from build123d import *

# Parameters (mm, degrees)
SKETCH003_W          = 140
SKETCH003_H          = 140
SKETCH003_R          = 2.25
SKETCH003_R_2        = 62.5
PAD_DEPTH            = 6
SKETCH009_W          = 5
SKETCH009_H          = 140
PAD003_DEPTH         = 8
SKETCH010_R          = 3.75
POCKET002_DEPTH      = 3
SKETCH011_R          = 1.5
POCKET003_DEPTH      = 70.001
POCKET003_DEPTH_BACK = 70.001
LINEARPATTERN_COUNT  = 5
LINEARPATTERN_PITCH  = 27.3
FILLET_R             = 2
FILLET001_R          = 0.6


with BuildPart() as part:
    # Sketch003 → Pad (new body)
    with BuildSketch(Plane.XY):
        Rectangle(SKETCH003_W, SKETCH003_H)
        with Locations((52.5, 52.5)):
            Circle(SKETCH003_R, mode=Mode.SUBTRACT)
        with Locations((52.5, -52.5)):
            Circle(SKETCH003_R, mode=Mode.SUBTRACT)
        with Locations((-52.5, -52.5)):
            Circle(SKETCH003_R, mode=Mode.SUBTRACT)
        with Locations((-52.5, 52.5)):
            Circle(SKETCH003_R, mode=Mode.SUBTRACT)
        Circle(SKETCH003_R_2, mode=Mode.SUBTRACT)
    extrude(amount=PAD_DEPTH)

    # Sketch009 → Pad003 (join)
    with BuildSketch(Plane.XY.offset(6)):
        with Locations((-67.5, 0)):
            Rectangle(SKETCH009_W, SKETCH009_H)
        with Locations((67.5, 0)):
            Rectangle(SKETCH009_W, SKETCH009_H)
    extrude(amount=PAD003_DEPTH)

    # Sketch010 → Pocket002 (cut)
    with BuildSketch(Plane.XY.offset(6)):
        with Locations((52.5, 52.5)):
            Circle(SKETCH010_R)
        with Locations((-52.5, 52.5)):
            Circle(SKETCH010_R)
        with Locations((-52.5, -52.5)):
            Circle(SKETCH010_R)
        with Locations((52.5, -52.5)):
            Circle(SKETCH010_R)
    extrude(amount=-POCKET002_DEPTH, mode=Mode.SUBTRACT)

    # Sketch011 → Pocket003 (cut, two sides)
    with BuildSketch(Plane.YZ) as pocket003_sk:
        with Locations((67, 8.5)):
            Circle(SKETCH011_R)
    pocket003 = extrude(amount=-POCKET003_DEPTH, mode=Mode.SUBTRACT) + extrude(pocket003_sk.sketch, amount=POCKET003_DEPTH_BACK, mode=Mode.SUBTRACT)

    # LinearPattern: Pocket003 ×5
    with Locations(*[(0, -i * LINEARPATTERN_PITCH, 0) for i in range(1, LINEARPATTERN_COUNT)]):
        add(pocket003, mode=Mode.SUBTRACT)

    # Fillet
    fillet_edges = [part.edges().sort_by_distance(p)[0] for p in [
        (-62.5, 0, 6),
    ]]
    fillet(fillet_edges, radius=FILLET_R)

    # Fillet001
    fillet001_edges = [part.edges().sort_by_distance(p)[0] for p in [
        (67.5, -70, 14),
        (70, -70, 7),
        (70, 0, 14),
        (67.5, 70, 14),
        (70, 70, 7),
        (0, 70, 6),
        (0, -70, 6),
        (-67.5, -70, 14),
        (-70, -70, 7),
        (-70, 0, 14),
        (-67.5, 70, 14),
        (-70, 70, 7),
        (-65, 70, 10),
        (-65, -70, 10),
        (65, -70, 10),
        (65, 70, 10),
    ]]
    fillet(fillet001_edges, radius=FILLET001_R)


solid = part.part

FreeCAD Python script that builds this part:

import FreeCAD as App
import Part
import Sketcher

V = App.Vector
Q = App.Units.Quantity


def edges_at(feature, points):
    """Names of the edges that pass closest to the given points."""
    edges = feature.Shape.Edges
    near = lambda p: min(range(len(edges)), key=lambda i: edges[i].distToShape(Part.Vertex(*p))[0])
    return sorted({f"Edge{near(p) + 1}" for p in points})


def add_polygon(sketch, points):
    """Adds a closed chain of lines whose ends are joined by coincident constraints."""
    first, n = sketch.GeometryCount, len(points)
    for a, b in zip(points, points[1:] + points[:1]):
        sketch.addGeometry(Part.LineSegment(App.Vector(*a, 0), App.Vector(*b, 0)), False)
    for i in range(n):
        sketch.addConstraint(Sketcher.Constraint("Coincident", first + i, 2, first + (i + 1) % n, 1))

doc = App.newDocument("Part")
body = doc.addObject("PartDesign::Body", "Body")

sketch1 = body.newObject("Sketcher::SketchObject", "Sketch")
sketch1.AttachmentSupport = (doc.getObject("XY_Plane"), [""])
sketch1.MapMode = "FlatFace"
add_polygon(sketch1, [(-70, 70), (-70, -70), (70, -70), (70, 70)])
sketch1.addGeometry(Part.Circle(V(-52.5, -52.5, 0), V(0, 0, 1), 2.2), False)
sketch1.addGeometry(Part.Circle(V(52.5, -52.5, 0), V(0, 0, 1), 2.2), False)
sketch1.addGeometry(Part.Circle(V(-52.5, 52.5, 0), V(0, 0, 1), 2.2), False)
sketch1.addGeometry(Part.Circle(V(0, 0, 0), V(0, 0, 1), 62.5), False)
sketch1.addGeometry(Part.Circle(V(52.5, 52.5, 0), V(0, 0, 1), 2.2), False)
sketch1.addConstraint([
    Sketcher.Constraint("Vertical", 0),
    Sketcher.Constraint("Horizontal", 1),
    Sketcher.Constraint("Vertical", 2),
    Sketcher.Constraint("Horizontal", 3),
    Sketcher.Constraint("Coincident", 7, 3, -1, 1),
    Sketcher.Constraint("Equal", 4, 5),
    Sketcher.Constraint("Equal", 5, 6),
    Sketcher.Constraint("Equal", 6, 8),
    Sketcher.Constraint("Symmetric", 5, 3, 6, 3, -1, 1),
    Sketcher.Constraint("Symmetric", 4, 3, 8, 3, -1, 1),
    Sketcher.Constraint("Symmetric", 0, 2, 2, 2, -1, 1),
    Sketcher.Constraint("Symmetric", 4, 3, 5, 3, -2),
    Sketcher.Constraint("Equal", 3, 0),
    Sketcher.Constraint("Diameter", 7, Q("125 mm")),
    Sketcher.Constraint("Diameter", 4, Q("4.5 mm")),
    Sketcher.Constraint("DistanceX", 1, 1, 1, 2, Q("140 mm")),
    Sketcher.Constraint("DistanceX", 4, 3, 5, 3, Q("105 mm")),
    Sketcher.Constraint("DistanceY", 4, 3, 6, 3, Q("105 mm")),
])
pad1 = body.newObject("PartDesign::Pad", "Pad")
pad1.Profile = sketch1
pad1.Length = 6

sketch2 = body.newObject("Sketcher::SketchObject", "Sketch001")
sketch2.AttachmentSupport = (doc.getObject("XY_Plane"), [""])
sketch2.MapMode = "FlatFace"
sketch2.AttachmentOffset = App.Placement(V(0, 0, 6), App.Rotation())
add_polygon(sketch2, [(-70, 70), (-70, -70), (-65, -70), (-65, 70)])
add_polygon(sketch2, [(65, 70), (65, -70), (70, -70), (70, 70)])
sketch2.addConstraint([
    Sketcher.Constraint("Vertical", 0),
    Sketcher.Constraint("Horizontal", 1),
    Sketcher.Constraint("Vertical", 2),
    Sketcher.Constraint("Horizontal", 3),
    Sketcher.Constraint("Vertical", 4),
    Sketcher.Constraint("Horizontal", 5),
    Sketcher.Constraint("Vertical", 6),
    Sketcher.Constraint("Horizontal", 7),
    Sketcher.Constraint("Symmetric", 2, 2, 4, 2, -1, 1),
    Sketcher.Constraint("Symmetric", 0, 2, 6, 2, -1, 1),
    Sketcher.Constraint("Horizontal", 1, 2, 4, 2),
    Sketcher.Constraint("DistanceX", 1, 1, 1, 2, Q("5 mm")),
    Sketcher.Constraint("DistanceY", 0, 2, 0, 1, Q("140 mm")),
    Sketcher.Constraint("DistanceX", 0, 2, -1, 1, Q("70 mm")),
])
pad2 = body.newObject("PartDesign::Pad", "Pad001")
pad2.Profile = sketch2
pad2.Length = 8

sketch3 = body.newObject("Sketcher::SketchObject", "Sketch002")
sketch3.AttachmentSupport = (doc.getObject("XY_Plane"), [""])
sketch3.MapMode = "FlatFace"
sketch3.AttachmentOffset = App.Placement(V(0, 0, 6), App.Rotation())
sketch3.addGeometry([
    Part.Circle(V(52.5, 52.5, 0), V(0, 0, 1), 3.8),
    Part.Circle(V(-52.5, 52.5, 0), V(0, 0, 1), 3.8),
    Part.Circle(V(-52.5, -52.5, 0), V(0, 0, 1), 3.8),
    Part.Circle(V(52.5, -52.5, 0), V(0, 0, 1), 3.8),
], False)
sketch3.addConstraint([
    Sketcher.Constraint("Equal", 0, 1),
    Sketcher.Constraint("Equal", 1, 2),
    Sketcher.Constraint("Equal", 2, 3),
    Sketcher.Constraint("Symmetric", 0, 3, 2, 3, -1, 1),
    Sketcher.Constraint("Symmetric", 1, 3, 3, 3, -1, 1),
    Sketcher.Constraint("Symmetric", 0, 3, 1, 3, -2),
    Sketcher.Constraint("Diameter", 0, Q("7.5 mm")),
    Sketcher.Constraint("DistanceX", 1, 3, 0, 3, Q("105 mm")),
    Sketcher.Constraint("DistanceY", 2, 3, 1, 3, Q("105 mm")),
])
pocket1 = body.newObject("PartDesign::Pocket", "Pocket")
pocket1.Profile = sketch3
pocket1.Length = 3

sketch4 = body.newObject("Sketcher::SketchObject", "Sketch003")
sketch4.AttachmentSupport = (doc.getObject("YZ_Plane"), [""])
sketch4.MapMode = "FlatFace"
sketch4.addGeometry(Part.Circle(V(67, 8.5, 0), V(0, 0, 1), 1.5), False)
sketch4.addConstraint([
    Sketcher.Constraint("Diameter", 0, Q("3 mm")),
    Sketcher.Constraint("DistanceX", -1, 1, 0, 3, Q("67 mm")),
    Sketcher.Constraint("DistanceY", -1, 1, 0, 3, Q("8.5 mm")),
])
pocket2 = body.newObject("PartDesign::Pocket", "Pocket001")
pocket2.Profile = sketch4
pocket2.Type = "ThroughAll"
pocket2.Midplane = True
doc.recompute()

linearpattern = body.newObject("PartDesign::LinearPattern", "LinearPattern")
linearpattern.Originals = [pocket2]
linearpattern.Direction = (doc.getObject("Y_Axis"), [""])
linearpattern.Mode = "offset"
linearpattern.Offset = 27.3
linearpattern.Occurrences = 5
linearpattern.Reversed = True
body.Tip = linearpattern
doc.recompute()

fillet = body.newObject("PartDesign::Fillet", "Fillet")
fillet.Base = (linearpattern, edges_at(linearpattern, [(-62.5, 0, 6)]))
fillet.Radius = 2
doc.recompute()

fillet2 = body.newObject("PartDesign::Fillet", "Fillet001")
fillet2.Base = (fillet, edges_at(fillet, [
    (67.5, -70, 14),
    (70, -70, 7),
    (70, 0, 14),
    (67.5, 70, 14),
    (70, 70, 7),
    (0, 70, 6),
    (0, -70, 6),
    (-67.5, -70, 14),
    (-70, -70, 7),
    (-70, 0, 14),
    (-67.5, 70, 14),
    (-70, 70, 7),
    (-65, 70, 10),
    (-65, -70, 10),
    (65, -70, 10),
    (65, 70, 10),
]))
fillet2.Radius = 0.6

doc.recompute()
